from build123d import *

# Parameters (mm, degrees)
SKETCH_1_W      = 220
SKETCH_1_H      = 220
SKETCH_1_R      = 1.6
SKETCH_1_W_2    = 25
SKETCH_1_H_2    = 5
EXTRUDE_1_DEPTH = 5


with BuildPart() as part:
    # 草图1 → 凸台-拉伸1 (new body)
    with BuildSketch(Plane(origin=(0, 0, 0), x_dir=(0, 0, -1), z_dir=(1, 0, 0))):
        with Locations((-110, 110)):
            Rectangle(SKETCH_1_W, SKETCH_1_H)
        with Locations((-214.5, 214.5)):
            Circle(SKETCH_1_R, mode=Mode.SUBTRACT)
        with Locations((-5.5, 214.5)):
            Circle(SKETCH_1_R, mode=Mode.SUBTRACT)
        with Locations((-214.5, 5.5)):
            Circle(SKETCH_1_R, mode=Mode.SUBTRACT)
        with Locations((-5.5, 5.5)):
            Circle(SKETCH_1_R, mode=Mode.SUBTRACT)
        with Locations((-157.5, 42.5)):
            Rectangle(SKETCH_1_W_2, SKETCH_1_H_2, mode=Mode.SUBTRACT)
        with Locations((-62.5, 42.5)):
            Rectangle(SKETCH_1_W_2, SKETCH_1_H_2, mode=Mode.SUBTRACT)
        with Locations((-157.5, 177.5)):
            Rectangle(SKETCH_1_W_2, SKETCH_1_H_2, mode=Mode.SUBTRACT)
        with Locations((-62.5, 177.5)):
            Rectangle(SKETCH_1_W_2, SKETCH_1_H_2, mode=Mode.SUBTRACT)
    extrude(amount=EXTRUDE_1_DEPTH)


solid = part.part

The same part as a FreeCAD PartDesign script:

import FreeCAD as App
import Part
import Sketcher

V = App.Vector


def add_polygon(sketch, points):
    """Adds a closed chain of lines whose ends are joined by coincident constraints."""
    first, n = sketch.GeometryCount, len(points)
    for a, b in zip(points, points[1:] + points[:1]):
        sketch.addGeometry(Part.LineSegment(App.Vector(*a, 0), App.Vector(*b, 0)), False)
    for i in range(n):
        sketch.addConstraint(Sketcher.Constraint("Coincident", first + i, 2, first + (i + 1) % n, 1))

doc = App.newDocument("Part")
body = doc.addObject("PartDesign::Body", "Body")

# Sketch on YZ plane
sketch1 = body.newObject("Sketcher::SketchObject", "Sketch")
sketch1.AttachmentSupport = (doc.getObject("YZ_Plane"), [""])
sketch1.MapMode = "FlatFace"
add_polygon(sketch1, [(220, 220), (0, 220), (0, 0), (220, 0)])  # lines 0-3
sketch1.addGeometry(Part.Circle(V(5.5, 214.5, 0), V(0, 0, 1), 1.6), False)  # 4
add_polygon(sketch1, [(40, 145), (40, 170), (45, 170), (45, 145)])  # lines 5-8
add_polygon(sketch1, [(40, 50), (40, 75), (45, 75), (45, 50)])  # lines 9-12
sketch1.addGeometry(Part.Circle(V(5.5, 5.5, 0), V(0, 0, 1), 1.6), False)  # 13
sketch1.addGeometry(Part.Circle(V(214.5, 214.5, 0), V(0, 0, 1), 1.6), False)  # 14
add_polygon(sketch1, [(175, 145), (175, 170), (180, 170), (180, 145)])  # lines 15-18
add_polygon(sketch1, [(175, 50), (175, 75), (180, 75), (180, 50)])  # lines 19-22
sketch1.addGeometry(Part.Circle(V(214.5, 5.5, 0), V(0, 0, 1), 1.6), False)  # 23
sketch1.addConstraint([
    Sketcher.Constraint("Horizontal", 0),
    Sketcher.Constraint("Vertical", 1),
    Sketcher.Constraint("Horizontal", 2),
    Sketcher.Constraint("Vertical", 3),
    Sketcher.Constraint("Vertical", 5),
    Sketcher.Constraint("Horizontal", 6),
    Sketcher.Constraint("Vertical", 7),
    Sketcher.Constraint("Horizontal", 8),
    Sketcher.Constraint("Vertical", 9),
    Sketcher.Constraint("Horizontal", 10),
    Sketcher.Constraint("Vertical", 11),
    Sketcher.Constraint("Horizontal", 12),
    Sketcher.Constraint("Vertical", 15),
    Sketcher.Constraint("Horizontal", 16),
    Sketcher.Constraint("Vertical", 17),
    Sketcher.Constraint("Horizontal", 18),
    Sketcher.Constraint("Vertical", 19),
    Sketcher.Constraint("Horizontal", 20),
    Sketcher.Constraint("Vertical", 21),
    Sketcher.Constraint("Horizontal", 22),
    Sketcher.Constraint("Coincident", 1, 2, -1, 1),
    Sketcher.Constraint("Equal", 4, 13),
    Sketcher.Constraint("Equal", 13, 14),
    Sketcher.Constraint("Equal", 14, 23),
    Sketcher.Constraint("Horizontal", 4, 3, 14, 3),
    Sketcher.Constraint("Horizontal", 13, 3, 23, 3),
    Sketcher.Constraint("Horizontal", 6, 2, 15, 2),
    Sketcher.Constraint("Horizontal", 8, 2, 17, 2),
    Sketcher.Constraint("Horizontal", 10, 2, 19, 2),
    Sketcher.Constraint("Horizontal", 12, 2, 21, 2),
    Sketcher.Constraint("Vertical", 4, 3, 13, 3),
    Sketcher.Constraint("Vertical", 14, 3, 23, 3),
    Sketcher.Constraint("Vertical", 8, 2, 9, 2),
    Sketcher.Constraint("Vertical", 7, 2, 10, 2),
    Sketcher.Constraint("Vertical", 18, 2, 19, 2),
    Sketcher.Constraint("Vertical", 17, 2, 20, 2),
    Sketcher.Constraint("Equal", 12, 16),
    Sketcher.Constraint("Equal", 2, 1),
    Sketcher.Constraint("Equal", 7, 9),
    Sketcher.Constraint("Diameter", 4, 3.2),
    Sketcher.Constraint("DistanceX", 0, 2, 0, 1, 220.0),
    Sketcher.Constraint("DistanceX", 6, 1, 6, 2, 5.0),
    Sketcher.Constraint("DistanceY", 5, 1, 5, 2, 25.0),
    Sketcher.Constraint("DistanceX", -1, 1, 5, 2, 40.0),
    Sketcher.Constraint("DistanceY", -1, 1, 5, 2, 170.0),
    Sketcher.Constraint("DistanceY", -1, 1, 9, 2, 75.0),
    Sketcher.Constraint("DistanceX", -1, 1, 15, 2, 175.0),
    Sketcher.Constraint("DistanceY", 13, 3, 4, 3, 209.0),
    Sketcher.Constraint("DistanceX", 4, 3, 14, 3, 209.0),
    Sketcher.Constraint("DistanceX", -1, 1, 4, 3, 5.5),
    Sketcher.Constraint("DistanceY", -1, 1, 4, 3, 214.5),
])
pad1 = body.newObject("PartDesign::Pad", "Pad")
pad1.Profile = sketch1
pad1.Length = 5

doc.recompute()
